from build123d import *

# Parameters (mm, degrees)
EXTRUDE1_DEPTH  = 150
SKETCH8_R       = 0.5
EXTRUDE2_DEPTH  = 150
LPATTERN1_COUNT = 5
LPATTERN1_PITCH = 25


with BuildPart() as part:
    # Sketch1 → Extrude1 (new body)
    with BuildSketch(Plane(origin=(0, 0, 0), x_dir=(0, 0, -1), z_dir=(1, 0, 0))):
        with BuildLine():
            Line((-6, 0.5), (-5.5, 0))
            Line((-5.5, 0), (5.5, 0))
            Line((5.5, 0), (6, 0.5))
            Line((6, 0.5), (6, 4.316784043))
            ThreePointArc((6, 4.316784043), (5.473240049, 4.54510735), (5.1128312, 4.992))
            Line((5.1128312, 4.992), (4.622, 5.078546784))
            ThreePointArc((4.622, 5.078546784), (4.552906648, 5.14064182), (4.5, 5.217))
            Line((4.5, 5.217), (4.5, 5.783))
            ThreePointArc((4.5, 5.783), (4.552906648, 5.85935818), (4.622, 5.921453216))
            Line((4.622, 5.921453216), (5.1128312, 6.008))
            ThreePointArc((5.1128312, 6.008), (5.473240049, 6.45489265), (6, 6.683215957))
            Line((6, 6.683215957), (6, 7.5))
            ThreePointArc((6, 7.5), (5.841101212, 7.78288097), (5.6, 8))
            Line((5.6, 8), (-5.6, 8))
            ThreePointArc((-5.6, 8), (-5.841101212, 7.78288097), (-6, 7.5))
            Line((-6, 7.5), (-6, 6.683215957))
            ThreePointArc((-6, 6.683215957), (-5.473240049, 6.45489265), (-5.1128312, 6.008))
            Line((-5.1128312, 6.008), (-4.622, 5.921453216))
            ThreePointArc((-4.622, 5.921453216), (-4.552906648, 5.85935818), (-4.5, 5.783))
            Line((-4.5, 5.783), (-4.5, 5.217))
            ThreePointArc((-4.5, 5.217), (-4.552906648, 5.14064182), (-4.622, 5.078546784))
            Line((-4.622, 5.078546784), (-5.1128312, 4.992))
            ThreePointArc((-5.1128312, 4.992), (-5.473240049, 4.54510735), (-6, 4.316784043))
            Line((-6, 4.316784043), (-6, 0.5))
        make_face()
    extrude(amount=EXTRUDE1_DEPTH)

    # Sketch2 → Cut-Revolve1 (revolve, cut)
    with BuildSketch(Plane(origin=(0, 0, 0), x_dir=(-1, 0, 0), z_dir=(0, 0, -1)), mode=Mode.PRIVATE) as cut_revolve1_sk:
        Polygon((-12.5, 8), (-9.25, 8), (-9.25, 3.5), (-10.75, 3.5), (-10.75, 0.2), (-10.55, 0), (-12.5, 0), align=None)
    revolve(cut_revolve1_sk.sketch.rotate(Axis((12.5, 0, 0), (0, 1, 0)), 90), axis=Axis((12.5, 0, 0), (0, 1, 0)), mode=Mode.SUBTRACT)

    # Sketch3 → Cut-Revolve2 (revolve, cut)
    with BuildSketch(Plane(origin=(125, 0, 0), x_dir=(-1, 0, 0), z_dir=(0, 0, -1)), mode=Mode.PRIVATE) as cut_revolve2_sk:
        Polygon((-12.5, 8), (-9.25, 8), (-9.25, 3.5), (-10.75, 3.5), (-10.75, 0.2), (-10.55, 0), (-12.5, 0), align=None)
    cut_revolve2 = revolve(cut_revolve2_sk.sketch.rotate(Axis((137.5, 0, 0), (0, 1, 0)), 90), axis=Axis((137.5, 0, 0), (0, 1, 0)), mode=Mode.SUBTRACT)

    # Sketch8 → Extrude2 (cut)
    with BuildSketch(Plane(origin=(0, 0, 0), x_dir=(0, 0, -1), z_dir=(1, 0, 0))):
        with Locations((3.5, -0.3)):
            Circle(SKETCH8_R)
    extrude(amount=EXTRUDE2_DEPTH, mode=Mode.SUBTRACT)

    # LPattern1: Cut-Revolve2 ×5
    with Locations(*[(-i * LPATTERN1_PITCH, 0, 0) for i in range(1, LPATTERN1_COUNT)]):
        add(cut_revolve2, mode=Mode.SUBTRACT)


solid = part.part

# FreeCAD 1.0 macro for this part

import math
import FreeCAD as App
import Part
import Sketcher
from FreeCAD import Vector
Q = App.Units.Quantity

doc = App.newDocument("Part")
body = doc.addObject("PartDesign::Body", "Body")

# Sketch on YZ plane
sketch1 = doc.addObject("Sketcher::SketchObject", "Sketch")
body.addObject(sketch1)
sketch1.AttachmentSupport = (doc.YZ_Plane, [""])
sketch1.MapMode = "FlatFace"
sketch1.addGeometry([
    Part.LineSegment(Vector(0.5, 6, 0), Vector(0, 5.5, 0)),  # 0
    Part.LineSegment(Vector(0, 5.5, 0), Vector(0, -5.5, 0)),  # 1
    Part.LineSegment(Vector(0, -5.5, 0), Vector(0.5, -6, 0)),  # 2
    Part.LineSegment(Vector(0.5, -6, 0), Vector(4.316784, -6, 0)),  # 3
    Part.ArcOfCircle(Part.Circle(Vector(5.5, -6.2, 0), Vector(0, 0, 1), 1.2), math.radians(115.045214), math.radians(170.405932)),  # 4
    Part.LineSegment(Vector(4.992, -5.112831, 0), Vector(5.078547, -4.622, 0)),  # 5
    Part.ArcOfCircle(Part.Circle(Vector(5.40509, -4.853019, 0), Vector(0, 0, 1), 0.4), math.radians(118.048871), math.radians(144.721816)),  # 6
    Part.LineSegment(Vector(5.217, -4.5, 0), Vector(5.783, -4.5, 0)),  # 7
    Part.ArcOfCircle(Part.Circle(Vector(5.59491, -4.853019, 0), Vector(0, 0, 1), 0.4), math.radians(35.278184), math.radians(61.951129)),  # 8
    Part.LineSegment(Vector(5.921453, -4.622, 0), Vector(6.008, -5.112831, 0)),  # 9
    Part.ArcOfCircle(Part.Circle(Vector(5.5, -6.2, 0), Vector(0, 0, 1), 1.2), math.radians(9.594068), math.radians(64.954786)),  # 10
    Part.LineSegment(Vector(6.683216, -6, 0), Vector(7.5, -6, 0)),  # 11
    Part.ArcOfCircle(Part.Circle(Vector(7.158186, -5.060232, 0), Vector(0, 0, 1), 1), math.radians(-70.012564), math.radians(-32.66782)),  # 12
    Part.LineSegment(Vector(8, -5.6, 0), Vector(8, 5.6, 0)),  # 13
    Part.ArcOfCircle(Part.Circle(Vector(7.158186, 5.060232, 0), Vector(0, 0, 1), 1), math.radians(32.66782), math.radians(70.012564)),  # 14
    Part.LineSegment(Vector(7.5, 6, 0), Vector(6.683216, 6, 0)),  # 15
    Part.ArcOfCircle(Part.Circle(Vector(5.5, 6.2, 0), Vector(0, 0, 1), 1.2), math.radians(-64.954786), math.radians(-9.594068)),  # 16
    Part.LineSegment(Vector(6.008, 5.112831, 0), Vector(5.921453, 4.622, 0)),  # 17
    Part.ArcOfCircle(Part.Circle(Vector(5.59491, 4.853019, 0), Vector(0, 0, 1), 0.4), math.radians(-61.951129), math.radians(-35.278184)),  # 18
    Part.LineSegment(Vector(5.783, 4.5, 0), Vector(5.217, 4.5, 0)),  # 19
    Part.ArcOfCircle(Part.Circle(Vector(5.40509, 4.853019, 0), Vector(0, 0, 1), 0.4), math.radians(-144.721816), math.radians(-118.048871)),  # 20
    Part.LineSegment(Vector(5.078547, 4.622, 0), Vector(4.992, 5.112831, 0)),  # 21
    Part.ArcOfCircle(Part.Circle(Vector(5.5, 6.2, 0), Vector(0, 0, 1), 1.2), math.radians(-170.405932), math.radians(-115.045214)),  # 22
    Part.LineSegment(Vector(4.316784, 6, 0), Vector(0.5, 6, 0)),  # 23
], False)
sketch1.addConstraint([
    Sketcher.Constraint("Coincident", 0, 2, 1, 1),
    Sketcher.Constraint("Coincident", 1, 2, 2, 1),
    Sketcher.Constraint("Coincident", 2, 2, 3, 1),
    Sketcher.Constraint("Coincident", 3, 2, 4, 2),
    Sketcher.Constraint("Coincident", 4, 1, 5, 1),
    Sketcher.Constraint("Coincident", 5, 2, 6, 2),
    Sketcher.Constraint("Coincident", 6, 1, 7, 1),
    Sketcher.Constraint("Coincident", 7, 2, 8, 2),
    Sketcher.Constraint("Coincident", 8, 1, 9, 1),
    Sketcher.Constraint("Coincident", 9, 2, 10, 2),
    Sketcher.Constraint("Coincident", 10, 1, 11, 1),
    Sketcher.Constraint("Coincident", 11, 2, 12, 1),
    Sketcher.Constraint("Coincident", 12, 2, 13, 1),
    Sketcher.Constraint("Coincident", 13, 2, 14, 1),
    Sketcher.Constraint("Coincident", 14, 2, 15, 1),
    Sketcher.Constraint("Coincident", 15, 2, 16, 2),
    Sketcher.Constraint("Coincident", 16, 1, 17, 1),
    Sketcher.Constraint("Coincident", 17, 2, 18, 2),
    Sketcher.Constraint("Coincident", 18, 1, 19, 1),
    Sketcher.Constraint("Coincident", 19, 2, 20, 2),
    Sketcher.Constraint("Coincident", 20, 1, 21, 1),
    Sketcher.Constraint("Coincident", 21, 2, 22, 2),
    Sketcher.Constraint("Coincident", 22, 1, 23, 1),
    Sketcher.Constraint("Coincident", 23, 2, 0, 1),
    Sketcher.Constraint("Vertical", 1),
    Sketcher.Constraint("Horizontal", 3),
    Sketcher.Constraint("Horizontal", 7),
    Sketcher.Constraint("Horizontal", 11),
    Sketcher.Constraint("Vertical", 13),
    Sketcher.Constraint("Horizontal", 15),
    Sketcher.Constraint("Horizontal", 19),
    Sketcher.Constraint("Horizontal", 23),
    Sketcher.Constraint("Coincident", 10, 3, 4, 3),
    Sketcher.Constraint("Coincident", 22, 3, 16, 3),
    Sketcher.Constraint("Equal", 6, 8),
    Sketcher.Constraint("Equal", 4, 10),
    Sketcher.Constraint("Equal", 12, 14),
    Sketcher.Constraint("Equal", 10, 16),
    Sketcher.Constraint("Equal", 8, 18),
    Sketcher.Constraint("Equal", 18, 20),
    Sketcher.Constraint("Equal", 16, 22),
    Sketcher.Constraint("Symmetric", 0, 2, 1, 2, -1, 1),
    Sketcher.Constraint("Symmetric", 12, 3, 14, 3, -1),
    Sketcher.Constraint("Symmetric", 4, 3, 16, 3, -1),
    Sketcher.Constraint("Symmetric", 8, 3, 18, 3, -1),
    Sketcher.Constraint("Symmetric", 6, 3, 20, 3, -1),
    Sketcher.Constraint("Symmetric", 2, 2, 23, 2, -1),
    Sketcher.Constraint("Perpendicular", 0, 2),
    Sketcher.Constraint("Parallel", 5, 17),
    Sketcher.Constraint("Parallel", 9, 21),
    Sketcher.Constraint("Horizontal", 6, 3, 8, 3),
    Sketcher.Constraint("Horizontal", 5, 2, 8, 1),
    Sketcher.Constraint("Horizontal", 4, 1, 9, 2),
    Sketcher.Constraint("Horizontal", 3, 2, 10, 1),
    Sketcher.Constraint("Horizontal", 17, 2, 20, 1),
    Sketcher.Constraint("Horizontal", 16, 1, 21, 2),
    Sketcher.Constraint("Horizontal", 15, 2, 22, 1),
    Sketcher.Constraint("Vertical", 9, 2, 16, 1),
    Sketcher.Constraint("Vertical", 7, 2, 18, 1),
    Sketcher.Constraint("Radius", 12, 1.0),
    Sketcher.Constraint("Radius", 4, 1.2),
    Sketcher.Constraint("Radius", 6, 0.4),
    Sketcher.Constraint("DistanceY", 1, 2, 1, 1, 11.0),
    Sketcher.Constraint("Angle", 5, Q("80 deg")),
    Sketcher.Constraint("DistanceY", 13, 1, 13, 2, 11.2),
    Sketcher.Constraint("DistanceY", 2, 2, -1, 1, 6.0),
    Sketcher.Constraint("DistanceX", -1, 1, 12, 2, 8.0),
    Sketcher.Constraint("DistanceX", 2, 2, 10, 3, 5.0),
    Sketcher.Constraint("DistanceX", 4, 3, 11, 2, 2.0),
    Sketcher.Constraint("DistanceY", 4, 3, -1, 1, 6.2),
    Sketcher.Constraint("DistanceY", 6, 1, -1, 1, 4.5),
    Sketcher.Constraint("DistanceX", 7, 1, 7, 2, 0.566),
    Sketcher.Constraint("DistanceX", -1, 1, 4, 1, 4.992),
    Sketcher.Constraint("DistanceY", 5, 2, -1, 1, 4.622),
])
pad1 = doc.addObject("PartDesign::Pad", "Pad")
body.addObject(pad1)
pad1.Profile = sketch1
pad1.Length = 150

# Sketch on XY plane
sketch2 = doc.addObject("Sketcher::SketchObject", "Sketch001")
body.addObject(sketch2)
sketch2.AttachmentSupport = (doc.XY_Plane, [""])
sketch2.MapMode = "FlatFace"
sketch2.addGeometry([
    Part.LineSegment(Vector(9.25, 8, 0), Vector(12.5, 8, 0)),  # 0
    Part.LineSegment(Vector(12.5, 8, 0), Vector(12.5, 0, 0)),  # 1
    Part.LineSegment(Vector(12.5, 0, 0), Vector(10.55, 0, 0)),  # 2
    Part.LineSegment(Vector(10.55, 0, 0), Vector(10.75, 0.2, 0)),  # 3
    Part.LineSegment(Vector(10.75, 0.2, 0), Vector(10.75, 3.5, 0)),  # 4
    Part.LineSegment(Vector(10.75, 3.5, 0), Vector(9.25, 3.5, 0)),  # 5
    Part.LineSegment(Vector(9.25, 3.5, 0), Vector(9.25, 8, 0)),  # 6
], False)
sketch2.addGeometry(Part.LineSegment(Vector(12.5, 0, 0), Vector(12.5, 8, 0)), True)  # axis
sketch2.addConstraint([
    Sketcher.Constraint("Coincident", 0, 2, 1, 1),
    Sketcher.Constraint("Coincident", 1, 2, 2, 1),
    Sketcher.Constraint("Coincident", 2, 2, 3, 1),
    Sketcher.Constraint("Coincident", 3, 2, 4, 1),
    Sketcher.Constraint("Coincident", 4, 2, 5, 1),
    Sketcher.Constraint("Coincident", 5, 2, 6, 1),
    Sketcher.Constraint("Coincident", 6, 2, 0, 1),
    Sketcher.Constraint("Horizontal", 0),
    Sketcher.Constraint("Vertical", 1),
    Sketcher.Constraint("Horizontal", 2),
    Sketcher.Constraint("Vertical", 4),
    Sketcher.Constraint("Horizontal", 5),
    Sketcher.Constraint("Vertical", 6),
    Sketcher.Constraint("Vertical", 7),
    Sketcher.Constraint("Coincident", 7, 1, 1, 2),
    Sketcher.Constraint("PointOnObject", 1, 2, -1),
    Sketcher.Constraint("Horizontal", 6, 2, 7, 2),
    Sketcher.Constraint("DistanceY", 1, 2, 1, 1, 8.0),
    Sketcher.Constraint("Angle", 3, Q("45 deg")),
    Sketcher.Constraint("DistanceX", 5, 2, 5, 1, 1.5),
    Sketcher.Constraint("DistanceY", 4, 1, 4, 2, 3.3),
    Sketcher.Constraint("DistanceY", 6, 1, 6, 2, 4.5),
    Sketcher.Constraint("DistanceX", 0, 1, 0, 2, 3.25),
    Sketcher.Constraint("DistanceX", -1, 1, 0, 2, 12.5),
])
groove = doc.addObject("PartDesign::Groove", "Groove")
body.addObject(groove)
groove.Profile = sketch2
groove.ReferenceAxis = (sketch2, ["Axis0"])
groove.Angle = 360

# Sketch on XY plane
sketch3 = doc.addObject("Sketcher::SketchObject", "Sketch002")
body.addObject(sketch3)
sketch3.AttachmentSupport = (doc.XY_Plane, [""])
sketch3.MapMode = "FlatFace"
sketch3.addGeometry([
    Part.LineSegment(Vector(134.25, 8, 0), Vector(137.5, 8, 0)),  # 0
    Part.LineSegment(Vector(137.5, 8, 0), Vector(137.5, 0, 0)),  # 1
    Part.LineSegment(Vector(137.5, 0, 0), Vector(135.55, 0, 0)),  # 2
    Part.LineSegment(Vector(135.55, 0, 0), Vector(135.75, 0.2, 0)),  # 3
    Part.LineSegment(Vector(135.75, 0.2, 0), Vector(135.75, 3.5, 0)),  # 4
    Part.LineSegment(Vector(135.75, 3.5, 0), Vector(134.25, 3.5, 0)),  # 5
    Part.LineSegment(Vector(134.25, 3.5, 0), Vector(134.25, 8, 0)),  # 6
], False)
sketch3.addGeometry(Part.LineSegment(Vector(137.5, 0, 0), Vector(137.5, 8, 0)), True)  # axis
sketch3.addConstraint([
    Sketcher.Constraint("Coincident", 0, 2, 1, 1),
    Sketcher.Constraint("Coincident", 1, 2, 2, 1),
    Sketcher.Constraint("Coincident", 2, 2, 3, 1),
    Sketcher.Constraint("Coincident", 3, 2, 4, 1),
    Sketcher.Constraint("Coincident", 4, 2, 5, 1),
    Sketcher.Constraint("Coincident", 5, 2, 6, 1),
    Sketcher.Constraint("Coincident", 6, 2, 0, 1),
    Sketcher.Constraint("Horizontal", 0),
    Sketcher.Constraint("Vertical", 1),
    Sketcher.Constraint("Horizontal", 2),
    Sketcher.Constraint("Vertical", 4),
    Sketcher.Constraint("Horizontal", 5),
    Sketcher.Constraint("Vertical", 6),
    Sketcher.Constraint("Vertical", 7),
    Sketcher.Constraint("Coincident", 7, 1, 1, 2),
    Sketcher.Constraint("PointOnObject", 1, 2, -1),
    Sketcher.Constraint("Horizontal", 6, 2, 7, 2),
    Sketcher.Constraint("DistanceY", 1, 2, 1, 1, 8.0),
    Sketcher.Constraint("Angle", 3, Q("45 deg")),
    Sketcher.Constraint("DistanceX", 5, 2, 5, 1, 1.5),
    Sketcher.Constraint("DistanceY", 4, 1, 4, 2, 3.3),
    Sketcher.Constraint("DistanceY", 6, 1, 6, 2, 4.5),
    Sketcher.Constraint("DistanceX", 0, 1, 0, 2, 3.25),
    Sketcher.Constraint("DistanceX", -1, 1, 0, 2, 137.5),
])
groove2 = doc.addObject("PartDesign::Groove", "Groove001")
body.addObject(groove2)
groove2.Profile = sketch3
groove2.ReferenceAxis = (sketch3, ["Axis0"])
groove2.Angle = 360

# Sketch on YZ plane
sketch4 = doc.addObject("Sketcher::SketchObject", "Sketch003")
body.addObject(sketch4)
sketch4.AttachmentSupport = (doc.YZ_Plane, [""])
sketch4.MapMode = "FlatFace"
sketch4.addGeometry(Part.Circle(Vector(-0.3, -3.5, 0), Vector(0, 0, 1), 0.5), False)
sketch4.addConstraint([
    Sketcher.Constraint("Diameter", 0, 1.0),
    Sketcher.Constraint("DistanceX", 0, 3, -1, 1, 0.3),
    Sketcher.Constraint("DistanceY", 0, 3, -1, 1, 3.5),
])
pocket1 = doc.addObject("PartDesign::Pocket", "Pocket")
body.addObject(pocket1)
pocket1.Profile = sketch4
pocket1.Length = 150
pocket1.Reversed = True
doc.recompute()

linearpattern = doc.addObject("PartDesign::LinearPattern", "LinearPattern")
body.addObject(linearpattern)
linearpattern.Originals = [groove2]
linearpattern.Direction = (doc.X_Axis, [""])
linearpattern.Mode = "offset"
linearpattern.Offset = 25
linearpattern.Occurrences = 5
linearpattern.Reversed = True
body.Tip = linearpattern

doc.recompute()
